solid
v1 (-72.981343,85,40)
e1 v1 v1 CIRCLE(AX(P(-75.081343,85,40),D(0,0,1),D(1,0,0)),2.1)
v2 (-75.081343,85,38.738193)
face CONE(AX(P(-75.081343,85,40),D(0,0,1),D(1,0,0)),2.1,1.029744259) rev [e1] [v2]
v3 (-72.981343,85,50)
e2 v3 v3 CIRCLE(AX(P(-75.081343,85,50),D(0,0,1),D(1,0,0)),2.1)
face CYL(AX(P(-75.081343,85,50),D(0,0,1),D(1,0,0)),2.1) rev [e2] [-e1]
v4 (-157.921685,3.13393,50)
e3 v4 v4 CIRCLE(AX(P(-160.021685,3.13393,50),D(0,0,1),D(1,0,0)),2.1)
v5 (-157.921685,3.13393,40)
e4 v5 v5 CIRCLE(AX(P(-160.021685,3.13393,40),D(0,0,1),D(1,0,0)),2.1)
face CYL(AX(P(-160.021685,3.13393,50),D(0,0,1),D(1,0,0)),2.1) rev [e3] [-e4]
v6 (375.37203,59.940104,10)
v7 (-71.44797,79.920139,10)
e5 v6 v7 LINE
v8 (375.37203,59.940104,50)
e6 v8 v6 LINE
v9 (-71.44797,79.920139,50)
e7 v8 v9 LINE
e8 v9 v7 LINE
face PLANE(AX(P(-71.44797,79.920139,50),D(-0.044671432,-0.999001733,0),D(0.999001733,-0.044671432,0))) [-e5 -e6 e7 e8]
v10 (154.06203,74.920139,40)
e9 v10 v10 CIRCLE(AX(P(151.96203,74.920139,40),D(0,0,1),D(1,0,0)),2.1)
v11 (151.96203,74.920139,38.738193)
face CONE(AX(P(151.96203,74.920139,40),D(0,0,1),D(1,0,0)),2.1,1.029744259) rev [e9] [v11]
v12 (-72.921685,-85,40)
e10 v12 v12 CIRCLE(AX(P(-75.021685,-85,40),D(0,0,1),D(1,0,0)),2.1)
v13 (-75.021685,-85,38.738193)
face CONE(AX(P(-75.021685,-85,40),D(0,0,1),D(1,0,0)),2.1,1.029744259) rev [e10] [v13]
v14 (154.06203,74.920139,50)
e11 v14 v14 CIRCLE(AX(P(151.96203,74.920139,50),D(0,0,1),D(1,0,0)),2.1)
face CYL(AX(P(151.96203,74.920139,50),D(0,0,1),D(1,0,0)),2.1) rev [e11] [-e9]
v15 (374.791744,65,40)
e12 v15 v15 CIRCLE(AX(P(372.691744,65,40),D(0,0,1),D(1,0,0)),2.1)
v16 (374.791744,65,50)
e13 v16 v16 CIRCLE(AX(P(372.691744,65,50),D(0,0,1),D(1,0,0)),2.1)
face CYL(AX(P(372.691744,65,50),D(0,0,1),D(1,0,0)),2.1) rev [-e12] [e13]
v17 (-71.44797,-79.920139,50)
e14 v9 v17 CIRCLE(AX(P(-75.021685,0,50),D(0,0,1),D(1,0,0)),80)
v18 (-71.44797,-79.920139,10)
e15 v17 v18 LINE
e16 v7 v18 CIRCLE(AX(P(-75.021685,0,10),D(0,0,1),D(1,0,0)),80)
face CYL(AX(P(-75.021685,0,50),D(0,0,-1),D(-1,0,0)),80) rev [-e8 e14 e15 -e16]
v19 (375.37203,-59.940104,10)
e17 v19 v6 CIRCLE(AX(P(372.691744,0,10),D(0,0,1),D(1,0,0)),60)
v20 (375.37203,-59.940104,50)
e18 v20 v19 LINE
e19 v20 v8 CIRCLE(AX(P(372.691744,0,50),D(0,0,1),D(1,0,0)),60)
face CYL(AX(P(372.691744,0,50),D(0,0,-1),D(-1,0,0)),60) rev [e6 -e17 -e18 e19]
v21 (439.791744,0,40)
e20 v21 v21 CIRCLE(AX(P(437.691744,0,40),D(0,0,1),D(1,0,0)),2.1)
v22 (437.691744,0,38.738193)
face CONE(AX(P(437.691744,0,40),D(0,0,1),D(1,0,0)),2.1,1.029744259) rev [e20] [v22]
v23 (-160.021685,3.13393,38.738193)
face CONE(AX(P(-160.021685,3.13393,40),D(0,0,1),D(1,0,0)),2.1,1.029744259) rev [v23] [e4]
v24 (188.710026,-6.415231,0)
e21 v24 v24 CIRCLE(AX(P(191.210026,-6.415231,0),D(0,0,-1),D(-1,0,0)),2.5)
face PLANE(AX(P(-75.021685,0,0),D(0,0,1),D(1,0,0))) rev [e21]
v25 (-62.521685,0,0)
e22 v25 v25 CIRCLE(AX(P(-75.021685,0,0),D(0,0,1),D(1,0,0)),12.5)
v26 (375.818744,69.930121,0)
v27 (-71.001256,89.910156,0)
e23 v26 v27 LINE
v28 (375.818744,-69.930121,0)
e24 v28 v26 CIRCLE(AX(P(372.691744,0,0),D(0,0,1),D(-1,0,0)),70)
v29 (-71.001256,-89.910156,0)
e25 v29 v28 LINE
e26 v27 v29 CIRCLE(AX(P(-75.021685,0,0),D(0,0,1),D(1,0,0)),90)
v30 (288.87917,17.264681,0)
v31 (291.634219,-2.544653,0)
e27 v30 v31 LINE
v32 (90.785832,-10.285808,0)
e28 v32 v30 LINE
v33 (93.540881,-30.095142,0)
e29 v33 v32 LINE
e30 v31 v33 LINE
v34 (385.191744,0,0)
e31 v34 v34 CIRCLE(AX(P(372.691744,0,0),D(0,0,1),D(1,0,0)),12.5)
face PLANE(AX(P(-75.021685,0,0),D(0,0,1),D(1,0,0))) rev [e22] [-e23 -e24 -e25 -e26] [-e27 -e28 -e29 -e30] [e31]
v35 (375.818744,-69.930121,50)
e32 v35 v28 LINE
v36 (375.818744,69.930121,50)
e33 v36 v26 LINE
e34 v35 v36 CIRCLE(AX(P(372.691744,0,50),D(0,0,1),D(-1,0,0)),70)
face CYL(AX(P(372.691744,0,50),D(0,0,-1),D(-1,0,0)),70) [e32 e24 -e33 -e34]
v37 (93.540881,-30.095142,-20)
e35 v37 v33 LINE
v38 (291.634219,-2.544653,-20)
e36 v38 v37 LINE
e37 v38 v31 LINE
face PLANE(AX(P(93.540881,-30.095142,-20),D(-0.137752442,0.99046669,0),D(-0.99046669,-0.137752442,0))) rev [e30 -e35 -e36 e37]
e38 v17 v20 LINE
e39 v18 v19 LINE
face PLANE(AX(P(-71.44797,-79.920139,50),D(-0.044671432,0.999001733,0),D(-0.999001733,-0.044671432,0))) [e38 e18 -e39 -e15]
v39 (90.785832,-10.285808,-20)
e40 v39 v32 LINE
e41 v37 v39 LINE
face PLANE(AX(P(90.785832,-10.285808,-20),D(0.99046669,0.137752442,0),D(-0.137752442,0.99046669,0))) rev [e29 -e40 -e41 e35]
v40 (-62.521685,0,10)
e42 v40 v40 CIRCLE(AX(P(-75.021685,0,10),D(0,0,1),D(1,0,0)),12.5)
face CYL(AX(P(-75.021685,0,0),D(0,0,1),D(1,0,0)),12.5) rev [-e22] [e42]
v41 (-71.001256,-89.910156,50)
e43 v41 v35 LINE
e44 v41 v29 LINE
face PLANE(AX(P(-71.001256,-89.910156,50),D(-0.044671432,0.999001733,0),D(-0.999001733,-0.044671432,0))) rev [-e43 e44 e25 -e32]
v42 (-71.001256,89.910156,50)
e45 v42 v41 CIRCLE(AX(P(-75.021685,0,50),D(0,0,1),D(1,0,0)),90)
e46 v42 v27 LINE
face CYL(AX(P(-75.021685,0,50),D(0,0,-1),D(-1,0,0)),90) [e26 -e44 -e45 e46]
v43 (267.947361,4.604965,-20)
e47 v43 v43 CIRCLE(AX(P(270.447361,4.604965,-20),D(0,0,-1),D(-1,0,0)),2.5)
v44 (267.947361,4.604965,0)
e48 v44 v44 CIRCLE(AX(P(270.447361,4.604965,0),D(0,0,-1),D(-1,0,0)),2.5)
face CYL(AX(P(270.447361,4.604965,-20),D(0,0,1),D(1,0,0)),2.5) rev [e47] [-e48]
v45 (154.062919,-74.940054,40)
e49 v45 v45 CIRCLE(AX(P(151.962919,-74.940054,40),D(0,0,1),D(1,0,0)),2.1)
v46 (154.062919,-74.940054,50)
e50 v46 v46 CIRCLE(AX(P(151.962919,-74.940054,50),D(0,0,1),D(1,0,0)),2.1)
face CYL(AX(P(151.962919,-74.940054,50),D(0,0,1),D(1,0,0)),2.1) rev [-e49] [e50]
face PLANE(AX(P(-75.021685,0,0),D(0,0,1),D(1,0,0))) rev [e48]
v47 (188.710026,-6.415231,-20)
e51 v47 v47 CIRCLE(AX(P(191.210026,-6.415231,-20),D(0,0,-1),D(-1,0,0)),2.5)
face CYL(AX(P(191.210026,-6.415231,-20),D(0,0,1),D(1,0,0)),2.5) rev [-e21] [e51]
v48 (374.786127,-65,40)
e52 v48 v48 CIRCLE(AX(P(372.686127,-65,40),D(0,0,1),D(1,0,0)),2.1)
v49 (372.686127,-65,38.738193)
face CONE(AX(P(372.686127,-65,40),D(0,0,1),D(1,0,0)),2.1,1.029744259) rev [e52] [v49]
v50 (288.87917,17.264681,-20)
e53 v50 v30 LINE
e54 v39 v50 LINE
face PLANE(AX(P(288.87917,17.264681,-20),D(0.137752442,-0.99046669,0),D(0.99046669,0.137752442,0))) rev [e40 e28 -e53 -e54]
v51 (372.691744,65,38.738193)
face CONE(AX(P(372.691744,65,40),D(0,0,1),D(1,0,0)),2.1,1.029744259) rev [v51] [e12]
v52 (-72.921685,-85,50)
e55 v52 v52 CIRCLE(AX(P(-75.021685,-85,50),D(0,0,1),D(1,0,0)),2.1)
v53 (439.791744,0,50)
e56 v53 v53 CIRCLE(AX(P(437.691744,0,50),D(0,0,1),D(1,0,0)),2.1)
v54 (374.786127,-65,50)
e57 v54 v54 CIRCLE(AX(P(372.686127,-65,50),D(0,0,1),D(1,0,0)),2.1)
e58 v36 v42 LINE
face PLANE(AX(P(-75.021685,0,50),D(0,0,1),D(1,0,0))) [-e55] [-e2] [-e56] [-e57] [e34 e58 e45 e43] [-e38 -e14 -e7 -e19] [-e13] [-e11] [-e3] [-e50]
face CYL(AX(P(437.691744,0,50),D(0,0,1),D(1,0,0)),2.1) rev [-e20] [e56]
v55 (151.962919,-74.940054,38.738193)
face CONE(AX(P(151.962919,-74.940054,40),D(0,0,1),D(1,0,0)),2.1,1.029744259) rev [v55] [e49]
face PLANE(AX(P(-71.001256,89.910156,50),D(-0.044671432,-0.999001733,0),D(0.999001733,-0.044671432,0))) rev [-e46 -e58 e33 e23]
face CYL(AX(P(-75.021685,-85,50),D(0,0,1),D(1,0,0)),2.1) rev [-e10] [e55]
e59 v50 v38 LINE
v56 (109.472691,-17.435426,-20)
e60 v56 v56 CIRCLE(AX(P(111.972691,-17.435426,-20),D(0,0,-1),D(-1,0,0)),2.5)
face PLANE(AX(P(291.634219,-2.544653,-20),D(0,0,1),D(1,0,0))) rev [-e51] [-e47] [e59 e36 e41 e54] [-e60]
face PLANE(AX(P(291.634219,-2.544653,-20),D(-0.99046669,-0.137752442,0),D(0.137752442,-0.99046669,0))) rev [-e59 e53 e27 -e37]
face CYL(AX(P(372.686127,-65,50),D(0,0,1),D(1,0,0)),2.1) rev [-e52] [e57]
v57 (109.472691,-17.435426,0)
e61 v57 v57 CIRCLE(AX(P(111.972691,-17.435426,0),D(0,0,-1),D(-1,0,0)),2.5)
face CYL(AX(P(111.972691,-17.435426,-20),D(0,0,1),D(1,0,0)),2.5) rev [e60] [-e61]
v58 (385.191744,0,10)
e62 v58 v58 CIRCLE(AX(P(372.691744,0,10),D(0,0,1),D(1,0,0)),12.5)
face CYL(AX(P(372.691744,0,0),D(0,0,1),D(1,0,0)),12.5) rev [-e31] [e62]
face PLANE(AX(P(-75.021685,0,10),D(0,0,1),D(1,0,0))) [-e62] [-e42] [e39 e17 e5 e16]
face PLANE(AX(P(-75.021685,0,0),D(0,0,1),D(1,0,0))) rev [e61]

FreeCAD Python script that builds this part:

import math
import FreeCAD as App
import Part
import Sketcher

V = App.Vector


def faces_at(feature, points):
    """Names of the faces that lie closest to the given points."""
    faces = feature.Shape.Faces
    near = lambda p: min(range(len(faces)), key=lambda i: faces[i].distToShape(Part.Vertex(*p))[0])
    return sorted({f"Face{near(p) + 1}" for p in points})

doc = App.newDocument("Part")
params = doc.addObject("Spreadsheet::Sheet", "Params")
for row, (alias, value) in enumerate([
    ("sketch1_radius", "90 mm"),
    ("sketch1_radius2", "70 mm"),
    ("pad1_length", "50 mm"),
    ("thickness_wall", "10 mm"),
    ("sketch2_diameter", "25 mm"),
    ("pocket1_length", "10 mm"),
    ("sketch3_diameter", "4.2 mm"),
    ("hole_diameter", "4.2 mm"),
    ("hole_depth", "10 mm"),
    ("sketch4_diameter", "5 mm"),
    ("sketch4_length", "20 mm"),
    ("sketch4_length2", "200 mm"),
    ("pad2_length", "20 mm"),
], start=1):
    params.set(f"A{row}", alias)
    params.set(f"B{row}", "=" + value)
    params.setAlias(f"B{row}", alias)

body = doc.addObject("PartDesign::Body", "Body")

sketch1 = doc.addObject("Sketcher::SketchObject", "Sketch")
body.addObject(sketch1)
sketch1.AttachmentSupport = (doc.XY_Plane, [""])
sketch1.MapMode = "FlatFace"
sketch1.addGeometry([
    Part.LineSegment(V(376, 70, 0), V(-71, 90, 0)),
    Part.ArcOfCircle(Part.Circle(V(-75, 0, 0), V(0, 0, 1), 90), math.radians(87), math.radians(273)),
    Part.LineSegment(V(-71, -90, 0), V(376, -70, 0)),
    Part.ArcOfCircle(Part.Circle(V(373, 0, 0), V(0, 0, 1), 70), math.radians(-87), math.radians(87)),
], False)
sketch1.addConstraint([
    Sketcher.Constraint("Tangent", 0, 2, 1, 1),
    Sketcher.Constraint("Tangent", 1, 2, 2, 1),
    Sketcher.Constraint("Tangent", 2, 2, 3, 1),
    Sketcher.Constraint("Tangent", 3, 2, 0, 1),
    Sketcher.Constraint("Symmetric", 0, 2, 1, 2, -1),
    Sketcher.Constraint("Radius", 1, 90.0),
    Sketcher.Constraint("Radius", 3, 70.0),
    Sketcher.Constraint("DistanceX", 1, 2, 2, 2, 446.82),
    Sketcher.Constraint("DistanceX", 1, 3, -1, 1, 75.021685),
])
sketch1.setExpression("Constraints[5]", "Params.sketch1_radius")
sketch1.setExpression("Constraints[6]", "Params.sketch1_radius2")
pad1 = doc.addObject("PartDesign::Pad", "Pad")
body.addObject(pad1)
pad1.Profile = sketch1
pad1.setExpression("Length", "Params.pad1_length")
doc.recompute()

thickness = doc.addObject("PartDesign::Thickness", "Thickness")
body.addObject(thickness)
thickness.Base = (pad1, faces_at(pad1, [(138.835, 0, 50)]))
thickness.setExpression("Value", "Params.thickness_wall")
thickness.Reversed = True
thickness.Join = "Intersection"

sketch2 = doc.addObject("Sketcher::SketchObject", "Sketch001")
body.addObject(sketch2)
sketch2.AttachmentSupport = (doc.XY_Plane, [""])
sketch2.MapMode = "FlatFace"
sketch2.AttachmentOffset = App.Placement(V(0, 0, 10), App.Rotation())
sketch2.addGeometry([
    Part.Circle(V(-75, 0, 0), V(0, 0, 1), 12),
    Part.Circle(V(373, 0, 0), V(0, 0, 1), 12),
], False)
sketch2.addConstraint([
    Sketcher.Constraint("Equal", 0, 1),
    Sketcher.Constraint("PointOnObject", 0, 3, -1),
    Sketcher.Constraint("PointOnObject", 1, 3, -1),
    Sketcher.Constraint("Diameter", 0, 25.0),
    Sketcher.Constraint("DistanceX", 0, 3, 1, 3, 447.713429),
    Sketcher.Constraint("DistanceX", 0, 3, -1, 1, 75.021685),
])
sketch2.setExpression("Constraints[3]", "Params.sketch2_diameter")
pocket1 = doc.addObject("PartDesign::Pocket", "Pocket")
body.addObject(pocket1)
pocket1.Profile = sketch2
pocket1.setExpression("Length", "Params.pocket1_length")

sketch3 = doc.addObject("Sketcher::SketchObject", "Sketch002")
body.addObject(sketch3)
sketch3.AttachmentSupport = (doc.XY_Plane, [""])
sketch3.MapMode = "FlatFace"
sketch3.AttachmentOffset = App.Placement(V(0, 0, 50), App.Rotation())
sketch3.addGeometry([
    Part.Circle(V(-160, 3.1, 0), V(0, 0, 1), 2.1),
    Part.Circle(V(-75.1, 85, 0), V(0, 0, 1), 2.1),
    Part.Circle(V(-75, -85, 0), V(0, 0, 1), 2.1),
    Part.Circle(V(437.7, 0, 0), V(0, 0, 1), 2.1),
    Part.Circle(V(372.7, -65, 0), V(0, 0, 1), 2.1),
    Part.Circle(V(372.7, 65, 0), V(0, 0, 1), 2.1),
    Part.Circle(V(152, 74.9, 0), V(0, 0, 1), 2.1),
    Part.Circle(V(152, -74.9, 0), V(0, 0, 1), 2.1),
], False)
sketch3.addConstraint([
    Sketcher.Constraint("Equal", 0, 1),
    Sketcher.Constraint("Equal", 1, 2),
    Sketcher.Constraint("Equal", 2, 3),
    Sketcher.Constraint("Equal", 3, 4),
    Sketcher.Constraint("Equal", 4, 5),
    Sketcher.Constraint("Equal", 5, 6),
    Sketcher.Constraint("Equal", 6, 7),
    Sketcher.Constraint("PointOnObject", 3, 3, -1),
    Sketcher.Constraint("Diameter", 0, 4.2),
    Sketcher.Constraint("DistanceY", -1, 1, 1, 3, 85.0),
    Sketcher.Constraint("DistanceY", 2, 3, -1, 1, 85.0),
    Sketcher.Constraint("DistanceY", 4, 3, -1, 1, 65.0),
    Sketcher.Constraint("DistanceY", -1, 1, 5, 3, 65.0),
    Sketcher.Constraint("DistanceX", 0, 3, 2, 3, 85.0),
    Sketcher.Constraint("DistanceX", 5, 3, 3, 3, 65.0),
    Sketcher.Constraint("DistanceY", -1, 1, 0, 3, 3.13393),
    Sketcher.Constraint("DistanceX", -1, 1, 6, 3, 151.96203),
    Sketcher.Constraint("DistanceY", -1, 1, 6, 3, 74.920139),
    Sketcher.Constraint("DistanceX", -1, 1, 7, 3, 151.962919),
    Sketcher.Constraint("DistanceX", 2, 3, 3, 3, 512.713429),
    Sketcher.Constraint("DistanceX", 1, 3, 4, 3, 447.76747),
    Sketcher.Constraint("DistanceX", 7, 3, 4, 3, 220.723208),
    Sketcher.Constraint("DistanceX", 0, 3, -1, 1, 160.021685),
    Sketcher.Constraint("DistanceY", 7, 3, -1, 1, 74.940054),
])
sketch3.setExpression("Constraints[8]", "Params.sketch3_diameter")
doc.recompute()
hole = doc.addObject("PartDesign::Hole", "Hole")
body.addObject(hole)
hole.Profile = sketch3
hole.ThreadType = "None"
hole.setExpression("Diameter", "Params.hole_diameter")
hole.DepthType = "Dimension"
hole.setExpression("Depth", "Params.hole_depth")
hole.DrillPoint = "Angled"
hole.DrillPointAngle = 118

sketch4 = doc.addObject("Sketcher::SketchObject", "Sketch003")
body.addObject(sketch4)
sketch4.AttachmentSupport = (doc.XY_Plane, [""])
sketch4.MapMode = "FlatFace"
sketch4.addGeometry([
    Part.LineSegment(V(268.2, -5.8, 0), V(109.8, -27.8, 0)),
    Part.LineSegment(V(109.8, -27.8, 0), V(93.5, -30.1, 0)),
    Part.LineSegment(V(93.5, -30.1, 0), V(90.8, -10.3, 0)),
    Part.LineSegment(V(90.8, -10.3, 0), V(288.9, 17.3, 0)),
    Part.LineSegment(V(288.9, 17.3, 0), V(291.6, -2.5, 0)),
    Part.LineSegment(V(291.6, -2.5, 0), V(268.2, -5.8, 0)),
    Part.Circle(V(112, -17.4, 0), V(0, 0, 1), 2.5),
    Part.Circle(V(191.2, -6.4, 0), V(0, 0, 1), 2.5),
    Part.Circle(V(270.4, 4.6, 0), V(0, 0, 1), 2.5),
], False)
sketch4.addConstraint([
    Sketcher.Constraint("Coincident", 0, 2, 1, 1),
    Sketcher.Constraint("Coincident", 1, 2, 2, 1),
    Sketcher.Constraint("Coincident", 2, 2, 3, 1),
    Sketcher.Constraint("Coincident", 3, 2, 4, 1),
    Sketcher.Constraint("Coincident", 4, 2, 5, 1),
    Sketcher.Constraint("Coincident", 5, 2, 0, 1),
    Sketcher.Constraint("Equal", 6, 7),
    Sketcher.Constraint("Equal", 7, 8),
    Sketcher.Constraint("Parallel", 0, 1),
    Sketcher.Constraint("Perpendicular", 1, 2),
    Sketcher.Constraint("Perpendicular", 2, 3),
    Sketcher.Constraint("Perpendicular", 3, 4),
    Sketcher.Constraint("Perpendicular", 4, 5),
    Sketcher.Constraint("Diameter", 6, 5.0),
    Sketcher.Constraint("Distance", 2, 20.0),
    Sketcher.Constraint("Distance", 3, 200.0),
    Sketcher.Constraint("DistanceX", 5, 2, 8, 3, 2.225899),
    Sketcher.Constraint("Distance", 1, 16.442821),
    Sketcher.Constraint("DistanceX", -1, 1, 6, 3, 111.972691),
    Sketcher.Constraint("DistanceY", 7, 3, -1, 1, 6.415231),
    Sketcher.Constraint("DistanceX", -1, 1, 8, 3, 270.447361),
    Sketcher.Constraint("DistanceX", -1, 1, 1, 2, 93.540881),
    Sketcher.Constraint("DistanceY", 1, 2, -1, 1, 30.095142),
    Sketcher.Constraint("DistanceX", -1, 1, 3, 2, 288.87917),
    Sketcher.Constraint("DistanceY", 6, 3, 8, 3, 22.040391),
    Sketcher.Constraint("DistanceY", 6, 3, 2, 2, 7.149618),
    Sketcher.Constraint("DistanceX", -1, 1, 7, 3, 191.210026),
])
sketch4.setExpression("Constraints[13]", "Params.sketch4_diameter")
sketch4.setExpression("Constraints[14]", "Params.sketch4_length")
sketch4.setExpression("Constraints[15]", "Params.sketch4_length2")
pad2 = doc.addObject("PartDesign::Pad", "Pad001")
body.addObject(pad2)
pad2.Profile = sketch4
pad2.setExpression("Length", "Params.pad2_length")
pad2.Reversed = True

doc.recompute()
